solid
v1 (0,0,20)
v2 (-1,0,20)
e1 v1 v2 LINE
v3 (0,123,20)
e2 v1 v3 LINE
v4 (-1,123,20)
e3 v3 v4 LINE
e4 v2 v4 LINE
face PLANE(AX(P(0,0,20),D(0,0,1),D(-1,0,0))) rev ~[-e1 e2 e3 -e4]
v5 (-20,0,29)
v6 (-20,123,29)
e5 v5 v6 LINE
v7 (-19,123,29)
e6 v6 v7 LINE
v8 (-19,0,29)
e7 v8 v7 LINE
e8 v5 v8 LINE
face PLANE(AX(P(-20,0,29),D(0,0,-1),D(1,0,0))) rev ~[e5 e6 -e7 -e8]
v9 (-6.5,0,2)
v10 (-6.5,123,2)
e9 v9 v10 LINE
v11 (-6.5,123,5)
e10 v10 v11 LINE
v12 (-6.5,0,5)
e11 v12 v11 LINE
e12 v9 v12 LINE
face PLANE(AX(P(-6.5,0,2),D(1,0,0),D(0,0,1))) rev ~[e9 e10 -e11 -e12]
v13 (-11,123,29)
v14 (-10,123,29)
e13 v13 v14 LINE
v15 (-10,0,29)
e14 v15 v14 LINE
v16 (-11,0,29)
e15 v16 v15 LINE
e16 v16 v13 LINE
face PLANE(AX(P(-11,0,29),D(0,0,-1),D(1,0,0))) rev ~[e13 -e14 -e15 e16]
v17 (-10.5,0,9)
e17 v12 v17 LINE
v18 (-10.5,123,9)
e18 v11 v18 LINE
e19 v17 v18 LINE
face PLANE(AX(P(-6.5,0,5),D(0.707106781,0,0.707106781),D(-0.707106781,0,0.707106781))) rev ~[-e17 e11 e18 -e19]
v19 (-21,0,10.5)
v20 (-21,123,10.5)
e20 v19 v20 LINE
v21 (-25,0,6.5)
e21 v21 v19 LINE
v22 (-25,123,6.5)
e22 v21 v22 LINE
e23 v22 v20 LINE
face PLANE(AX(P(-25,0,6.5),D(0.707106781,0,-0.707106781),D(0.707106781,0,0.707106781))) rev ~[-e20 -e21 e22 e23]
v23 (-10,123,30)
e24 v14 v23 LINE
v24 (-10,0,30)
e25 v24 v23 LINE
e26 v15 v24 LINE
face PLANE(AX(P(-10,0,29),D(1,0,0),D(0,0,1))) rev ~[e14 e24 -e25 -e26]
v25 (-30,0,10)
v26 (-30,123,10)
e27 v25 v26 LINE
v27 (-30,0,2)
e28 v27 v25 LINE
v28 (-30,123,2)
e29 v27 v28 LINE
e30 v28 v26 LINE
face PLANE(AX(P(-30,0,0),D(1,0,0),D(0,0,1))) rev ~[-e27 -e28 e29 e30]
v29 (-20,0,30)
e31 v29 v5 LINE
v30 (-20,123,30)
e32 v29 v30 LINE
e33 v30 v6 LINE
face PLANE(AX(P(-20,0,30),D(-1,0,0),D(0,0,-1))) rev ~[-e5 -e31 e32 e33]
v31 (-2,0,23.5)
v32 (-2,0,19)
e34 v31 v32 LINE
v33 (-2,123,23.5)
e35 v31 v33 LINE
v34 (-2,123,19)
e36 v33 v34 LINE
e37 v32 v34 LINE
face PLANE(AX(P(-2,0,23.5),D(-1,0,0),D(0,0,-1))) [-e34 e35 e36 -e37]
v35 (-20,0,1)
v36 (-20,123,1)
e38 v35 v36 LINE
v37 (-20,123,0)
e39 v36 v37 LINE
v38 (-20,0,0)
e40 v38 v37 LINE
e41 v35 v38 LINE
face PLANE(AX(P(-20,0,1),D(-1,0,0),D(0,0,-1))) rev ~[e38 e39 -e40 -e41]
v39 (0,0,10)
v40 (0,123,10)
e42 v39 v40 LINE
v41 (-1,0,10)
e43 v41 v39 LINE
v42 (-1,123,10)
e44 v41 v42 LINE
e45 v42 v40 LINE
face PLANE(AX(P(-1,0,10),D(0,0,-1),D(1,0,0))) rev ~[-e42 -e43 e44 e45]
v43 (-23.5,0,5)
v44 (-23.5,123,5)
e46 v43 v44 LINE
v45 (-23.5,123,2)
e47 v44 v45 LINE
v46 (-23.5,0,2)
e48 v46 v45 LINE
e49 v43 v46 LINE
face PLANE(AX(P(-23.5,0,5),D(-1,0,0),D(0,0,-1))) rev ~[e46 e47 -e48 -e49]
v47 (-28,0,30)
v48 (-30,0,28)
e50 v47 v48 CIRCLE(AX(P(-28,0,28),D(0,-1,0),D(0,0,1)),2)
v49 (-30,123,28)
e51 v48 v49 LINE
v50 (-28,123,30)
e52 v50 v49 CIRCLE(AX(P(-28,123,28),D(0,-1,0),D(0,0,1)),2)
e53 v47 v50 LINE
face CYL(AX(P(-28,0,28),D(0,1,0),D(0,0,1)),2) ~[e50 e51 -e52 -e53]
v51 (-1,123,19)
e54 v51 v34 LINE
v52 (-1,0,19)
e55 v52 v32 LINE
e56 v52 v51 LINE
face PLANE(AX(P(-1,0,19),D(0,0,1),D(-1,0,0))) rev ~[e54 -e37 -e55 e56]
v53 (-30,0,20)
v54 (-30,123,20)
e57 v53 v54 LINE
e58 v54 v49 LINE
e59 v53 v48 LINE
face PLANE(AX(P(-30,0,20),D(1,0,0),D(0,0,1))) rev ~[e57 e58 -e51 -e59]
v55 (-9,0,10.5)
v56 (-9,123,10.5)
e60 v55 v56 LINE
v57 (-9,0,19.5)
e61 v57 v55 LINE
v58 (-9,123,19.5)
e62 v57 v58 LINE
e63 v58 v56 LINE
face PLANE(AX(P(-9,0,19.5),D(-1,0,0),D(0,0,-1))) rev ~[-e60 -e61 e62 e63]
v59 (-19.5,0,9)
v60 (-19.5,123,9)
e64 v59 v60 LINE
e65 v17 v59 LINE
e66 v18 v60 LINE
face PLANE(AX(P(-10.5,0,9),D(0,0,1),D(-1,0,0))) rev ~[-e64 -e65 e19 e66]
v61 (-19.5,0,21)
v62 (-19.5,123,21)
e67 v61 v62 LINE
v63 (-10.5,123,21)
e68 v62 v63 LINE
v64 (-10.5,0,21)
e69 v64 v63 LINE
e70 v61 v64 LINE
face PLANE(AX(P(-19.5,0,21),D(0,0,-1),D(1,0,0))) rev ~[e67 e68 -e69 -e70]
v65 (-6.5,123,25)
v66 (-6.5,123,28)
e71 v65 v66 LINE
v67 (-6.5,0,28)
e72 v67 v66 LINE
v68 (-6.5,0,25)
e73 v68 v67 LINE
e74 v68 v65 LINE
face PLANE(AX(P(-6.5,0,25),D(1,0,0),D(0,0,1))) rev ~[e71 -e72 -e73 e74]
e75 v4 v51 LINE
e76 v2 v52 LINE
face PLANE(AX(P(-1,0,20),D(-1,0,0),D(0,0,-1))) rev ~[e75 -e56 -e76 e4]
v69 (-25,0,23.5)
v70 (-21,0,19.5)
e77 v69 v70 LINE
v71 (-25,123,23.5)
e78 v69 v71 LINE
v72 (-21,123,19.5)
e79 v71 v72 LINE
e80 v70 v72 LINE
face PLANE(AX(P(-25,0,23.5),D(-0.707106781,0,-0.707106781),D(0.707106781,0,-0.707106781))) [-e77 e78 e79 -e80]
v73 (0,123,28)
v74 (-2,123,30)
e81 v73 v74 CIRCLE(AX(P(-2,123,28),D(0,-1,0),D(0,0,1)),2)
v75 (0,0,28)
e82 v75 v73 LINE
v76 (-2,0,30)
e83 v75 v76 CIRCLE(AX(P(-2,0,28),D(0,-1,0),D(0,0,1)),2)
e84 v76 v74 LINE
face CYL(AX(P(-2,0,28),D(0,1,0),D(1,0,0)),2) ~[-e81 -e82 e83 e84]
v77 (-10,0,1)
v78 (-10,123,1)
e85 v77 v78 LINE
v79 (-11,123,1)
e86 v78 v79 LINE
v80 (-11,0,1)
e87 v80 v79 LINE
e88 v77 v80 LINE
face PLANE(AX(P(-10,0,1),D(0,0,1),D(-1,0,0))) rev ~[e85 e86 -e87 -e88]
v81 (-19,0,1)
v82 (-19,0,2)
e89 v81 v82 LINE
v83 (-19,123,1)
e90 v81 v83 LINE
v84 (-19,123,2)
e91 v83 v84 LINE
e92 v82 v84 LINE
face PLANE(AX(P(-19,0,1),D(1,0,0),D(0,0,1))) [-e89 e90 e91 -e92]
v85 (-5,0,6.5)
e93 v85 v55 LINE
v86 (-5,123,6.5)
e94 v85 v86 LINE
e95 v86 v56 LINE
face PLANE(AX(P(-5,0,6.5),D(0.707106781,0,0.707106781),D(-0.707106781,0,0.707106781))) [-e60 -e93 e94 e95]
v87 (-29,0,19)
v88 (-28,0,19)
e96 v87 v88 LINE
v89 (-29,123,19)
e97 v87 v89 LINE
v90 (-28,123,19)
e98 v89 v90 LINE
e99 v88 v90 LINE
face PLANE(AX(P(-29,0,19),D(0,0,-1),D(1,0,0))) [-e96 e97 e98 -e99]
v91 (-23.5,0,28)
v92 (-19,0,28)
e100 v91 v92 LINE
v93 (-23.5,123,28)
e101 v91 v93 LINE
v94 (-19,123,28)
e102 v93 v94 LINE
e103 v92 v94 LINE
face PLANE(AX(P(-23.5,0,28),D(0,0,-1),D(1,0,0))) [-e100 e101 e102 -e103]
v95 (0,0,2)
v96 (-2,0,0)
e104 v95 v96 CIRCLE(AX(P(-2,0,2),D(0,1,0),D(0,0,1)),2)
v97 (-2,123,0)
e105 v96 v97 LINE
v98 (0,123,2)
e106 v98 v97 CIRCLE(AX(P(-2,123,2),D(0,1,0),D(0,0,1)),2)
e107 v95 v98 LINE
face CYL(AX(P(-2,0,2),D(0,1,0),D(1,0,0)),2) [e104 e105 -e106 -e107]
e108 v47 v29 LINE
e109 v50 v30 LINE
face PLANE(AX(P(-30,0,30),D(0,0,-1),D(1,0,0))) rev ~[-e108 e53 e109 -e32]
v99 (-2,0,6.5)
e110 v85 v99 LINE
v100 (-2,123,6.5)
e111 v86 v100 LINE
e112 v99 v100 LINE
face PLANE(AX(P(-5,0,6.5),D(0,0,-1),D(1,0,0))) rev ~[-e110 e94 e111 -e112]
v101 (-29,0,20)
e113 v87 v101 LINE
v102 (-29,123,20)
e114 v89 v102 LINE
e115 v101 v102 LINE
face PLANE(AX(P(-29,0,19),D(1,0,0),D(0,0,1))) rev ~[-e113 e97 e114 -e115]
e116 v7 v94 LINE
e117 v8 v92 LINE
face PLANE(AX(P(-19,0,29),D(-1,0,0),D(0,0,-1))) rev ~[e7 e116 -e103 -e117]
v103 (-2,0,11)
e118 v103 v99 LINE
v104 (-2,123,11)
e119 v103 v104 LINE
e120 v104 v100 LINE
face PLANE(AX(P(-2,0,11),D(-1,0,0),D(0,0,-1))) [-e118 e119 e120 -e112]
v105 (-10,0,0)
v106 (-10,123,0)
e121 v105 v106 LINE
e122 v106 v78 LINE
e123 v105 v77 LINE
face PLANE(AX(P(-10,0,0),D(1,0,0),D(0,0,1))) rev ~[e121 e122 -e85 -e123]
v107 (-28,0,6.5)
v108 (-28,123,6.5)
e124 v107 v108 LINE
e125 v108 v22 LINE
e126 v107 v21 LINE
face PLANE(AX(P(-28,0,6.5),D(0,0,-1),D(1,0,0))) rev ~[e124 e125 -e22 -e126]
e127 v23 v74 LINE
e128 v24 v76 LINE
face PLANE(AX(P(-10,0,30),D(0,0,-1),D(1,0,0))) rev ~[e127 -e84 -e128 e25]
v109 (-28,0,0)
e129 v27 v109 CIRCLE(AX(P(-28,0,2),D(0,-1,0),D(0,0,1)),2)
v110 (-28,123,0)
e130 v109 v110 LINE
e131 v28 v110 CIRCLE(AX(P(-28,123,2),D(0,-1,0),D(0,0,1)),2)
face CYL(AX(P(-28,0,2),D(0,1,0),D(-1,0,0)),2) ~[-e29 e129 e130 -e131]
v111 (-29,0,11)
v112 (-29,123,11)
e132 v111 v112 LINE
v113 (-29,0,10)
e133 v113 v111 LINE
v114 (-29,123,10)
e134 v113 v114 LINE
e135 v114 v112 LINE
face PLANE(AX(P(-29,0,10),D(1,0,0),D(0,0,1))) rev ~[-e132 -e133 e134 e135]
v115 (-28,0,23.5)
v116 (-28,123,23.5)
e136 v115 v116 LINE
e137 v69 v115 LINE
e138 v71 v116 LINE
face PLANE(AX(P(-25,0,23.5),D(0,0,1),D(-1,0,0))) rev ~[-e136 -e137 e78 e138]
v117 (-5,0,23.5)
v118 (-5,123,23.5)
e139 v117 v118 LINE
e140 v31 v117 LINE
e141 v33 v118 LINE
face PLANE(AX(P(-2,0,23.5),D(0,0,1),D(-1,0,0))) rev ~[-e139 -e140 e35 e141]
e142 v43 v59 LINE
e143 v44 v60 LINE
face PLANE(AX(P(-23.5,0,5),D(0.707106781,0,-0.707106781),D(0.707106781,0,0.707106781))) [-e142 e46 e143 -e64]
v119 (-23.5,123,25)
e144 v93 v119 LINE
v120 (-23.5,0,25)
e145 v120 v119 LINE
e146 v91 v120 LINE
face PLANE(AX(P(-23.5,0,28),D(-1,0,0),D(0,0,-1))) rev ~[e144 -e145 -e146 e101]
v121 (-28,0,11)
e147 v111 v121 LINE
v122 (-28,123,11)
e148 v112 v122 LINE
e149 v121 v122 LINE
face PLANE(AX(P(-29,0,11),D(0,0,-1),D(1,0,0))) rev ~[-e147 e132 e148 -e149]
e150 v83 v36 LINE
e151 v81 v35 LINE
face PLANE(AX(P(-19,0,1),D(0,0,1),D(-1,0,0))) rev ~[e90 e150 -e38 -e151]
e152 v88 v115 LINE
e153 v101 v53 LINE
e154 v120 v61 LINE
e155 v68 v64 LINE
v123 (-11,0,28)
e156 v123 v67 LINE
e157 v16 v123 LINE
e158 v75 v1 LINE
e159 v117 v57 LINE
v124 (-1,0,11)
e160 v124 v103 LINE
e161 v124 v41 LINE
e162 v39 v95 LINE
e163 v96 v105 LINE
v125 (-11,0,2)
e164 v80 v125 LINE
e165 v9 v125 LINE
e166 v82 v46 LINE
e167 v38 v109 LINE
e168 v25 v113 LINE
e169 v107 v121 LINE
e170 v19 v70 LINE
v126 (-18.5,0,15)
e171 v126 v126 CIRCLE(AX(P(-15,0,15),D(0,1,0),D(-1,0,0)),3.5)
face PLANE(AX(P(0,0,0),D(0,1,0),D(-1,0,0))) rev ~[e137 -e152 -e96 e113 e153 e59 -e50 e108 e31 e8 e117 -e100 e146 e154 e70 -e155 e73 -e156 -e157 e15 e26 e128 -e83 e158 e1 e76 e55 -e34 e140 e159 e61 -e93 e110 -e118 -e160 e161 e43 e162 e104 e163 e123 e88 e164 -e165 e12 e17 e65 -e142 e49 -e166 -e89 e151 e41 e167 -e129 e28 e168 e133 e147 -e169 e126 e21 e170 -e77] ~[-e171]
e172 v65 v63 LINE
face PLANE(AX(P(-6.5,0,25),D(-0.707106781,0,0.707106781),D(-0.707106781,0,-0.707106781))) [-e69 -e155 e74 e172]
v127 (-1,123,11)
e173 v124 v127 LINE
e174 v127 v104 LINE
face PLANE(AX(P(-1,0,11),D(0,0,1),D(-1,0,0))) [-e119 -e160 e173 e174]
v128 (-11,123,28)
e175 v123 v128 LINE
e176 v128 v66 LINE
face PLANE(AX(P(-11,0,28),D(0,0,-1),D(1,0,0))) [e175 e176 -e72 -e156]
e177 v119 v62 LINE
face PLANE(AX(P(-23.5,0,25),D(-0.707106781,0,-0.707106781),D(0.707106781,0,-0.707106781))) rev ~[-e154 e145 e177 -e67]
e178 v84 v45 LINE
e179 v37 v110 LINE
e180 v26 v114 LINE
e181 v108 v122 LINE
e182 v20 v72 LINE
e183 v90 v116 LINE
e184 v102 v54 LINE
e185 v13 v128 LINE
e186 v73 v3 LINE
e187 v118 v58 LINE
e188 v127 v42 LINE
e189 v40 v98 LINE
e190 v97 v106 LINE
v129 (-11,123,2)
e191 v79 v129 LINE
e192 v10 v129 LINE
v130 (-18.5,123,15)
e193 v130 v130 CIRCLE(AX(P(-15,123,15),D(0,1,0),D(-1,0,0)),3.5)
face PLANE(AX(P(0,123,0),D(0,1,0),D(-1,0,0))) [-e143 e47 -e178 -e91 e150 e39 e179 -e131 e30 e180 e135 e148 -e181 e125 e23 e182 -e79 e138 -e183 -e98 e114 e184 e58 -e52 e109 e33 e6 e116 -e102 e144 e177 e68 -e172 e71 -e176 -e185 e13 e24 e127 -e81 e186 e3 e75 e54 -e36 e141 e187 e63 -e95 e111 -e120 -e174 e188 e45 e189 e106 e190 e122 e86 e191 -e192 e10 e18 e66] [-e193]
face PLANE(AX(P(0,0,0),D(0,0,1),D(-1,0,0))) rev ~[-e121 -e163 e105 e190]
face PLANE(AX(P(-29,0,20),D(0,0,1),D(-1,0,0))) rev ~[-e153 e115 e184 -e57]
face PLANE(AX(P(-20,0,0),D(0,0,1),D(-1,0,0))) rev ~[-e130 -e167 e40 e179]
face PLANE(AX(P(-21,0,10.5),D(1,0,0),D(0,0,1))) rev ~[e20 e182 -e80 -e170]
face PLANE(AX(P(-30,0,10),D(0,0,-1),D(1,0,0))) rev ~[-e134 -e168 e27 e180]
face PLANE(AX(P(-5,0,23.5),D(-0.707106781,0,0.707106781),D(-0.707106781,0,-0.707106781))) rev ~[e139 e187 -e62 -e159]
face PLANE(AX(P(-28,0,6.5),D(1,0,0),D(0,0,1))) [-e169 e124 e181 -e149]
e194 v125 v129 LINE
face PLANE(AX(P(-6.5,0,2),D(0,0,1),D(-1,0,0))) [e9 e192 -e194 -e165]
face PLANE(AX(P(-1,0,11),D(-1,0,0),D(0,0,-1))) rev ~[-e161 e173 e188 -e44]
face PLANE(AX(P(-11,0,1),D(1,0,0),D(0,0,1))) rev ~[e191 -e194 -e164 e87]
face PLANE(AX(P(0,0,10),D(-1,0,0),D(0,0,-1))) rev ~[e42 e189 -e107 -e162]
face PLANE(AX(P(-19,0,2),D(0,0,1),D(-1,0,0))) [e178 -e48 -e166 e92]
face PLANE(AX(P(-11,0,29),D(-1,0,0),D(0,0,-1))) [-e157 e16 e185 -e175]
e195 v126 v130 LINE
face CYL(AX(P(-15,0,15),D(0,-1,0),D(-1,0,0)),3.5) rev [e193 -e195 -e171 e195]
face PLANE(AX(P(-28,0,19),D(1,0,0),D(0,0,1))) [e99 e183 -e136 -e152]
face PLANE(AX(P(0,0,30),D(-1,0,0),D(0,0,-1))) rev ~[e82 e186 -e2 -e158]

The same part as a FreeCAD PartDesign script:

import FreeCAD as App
import Part
import Sketcher
Q = App.Units.Quantity


def edges_at(feature, points):
    """Names of the edges that pass closest to the given points."""
    edges = feature.Shape.Edges
    near = lambda p: min(range(len(edges)), key=lambda i: edges[i].distToShape(Part.Vertex(*p))[0])
    return sorted({f"Edge{near(p) + 1}" for p in points})


def add_polygon(sketch, points):
    """Adds a closed chain of lines whose ends are joined by coincident constraints."""
    first, n = sketch.GeometryCount, len(points)
    for a, b in zip(points, points[1:] + points[:1]):
        sketch.addGeometry(Part.LineSegment(App.Vector(*a, 0), App.Vector(*b, 0)), False)
    for i in range(n):
        sketch.addConstraint(Sketcher.Constraint("Coincident", first + i, 2, first + (i + 1) % n, 1))

doc = App.newDocument("Part")
body = doc.addObject("PartDesign::Body", "Body")

sketch1 = doc.addObject("Sketcher::SketchObject", "Sketch")
body.addObject(sketch1)
sketch1.AttachmentSupport = (doc.XZ_Plane, [""])
sketch1.MapMode = "FlatFace"
add_polygon(sketch1, [(0, 10), (0, 0), (-10, 0), (-10, 1), (-11, 1), (-11, 2), (-6.5, 2), (-6.5, 5), (-10.5, 9), (-19.5, 9), (-23.5, 5), (-23.5, 2), (-19, 2), (-19, 1), (-20, 1), (-20, 0), (-30, 0), (-30, 10), (-29, 10), (-29, 11), (-28, 11), (-28, 6.5), (-25, 6.5), (-21, 10.5), (-21, 19.5), (-25, 23.5), (-28, 23.5), (-28, 19), (-29, 19), (-29, 20), (-30, 20), (-30, 30), (-20, 30), (-20, 29), (-19, 29), (-19, 28), (-23.5, 28), (-23.5, 25), (-19.5, 21), (-10.5, 21), (-6.5, 25), (-6.5, 28), (-11, 28), (-11, 29), (-10, 29), (-10, 30), (0, 30), (0, 20), (-1, 20), (-1, 19), (-2, 19), (-2, 23.5), (-5, 23.5), (-9, 19.5), (-9, 10.5), (-5, 6.5), (-2, 6.5), (-2, 11), (-1, 11), (-1, 10)])
sketch1.addGeometry(Part.Circle(App.Vector(-15, 15, 0), App.Vector(0, 0, 1), 3.5), False)
sketch1.addConstraint([
    Sketcher.Constraint("Vertical", 0),
    Sketcher.Constraint("Horizontal", 1),
    Sketcher.Constraint("Vertical", 2),
    Sketcher.Constraint("Horizontal", 3),
    Sketcher.Constraint("Vertical", 4),
    Sketcher.Constraint("Horizontal", 5),
    Sketcher.Constraint("Vertical", 6),
    Sketcher.Constraint("Horizontal", 8),
    Sketcher.Constraint("Vertical", 10),
    Sketcher.Constraint("Horizontal", 11),
    Sketcher.Constraint("Vertical", 12),
    Sketcher.Constraint("Horizontal", 13),
    Sketcher.Constraint("Vertical", 14),
    Sketcher.Constraint("Horizontal", 15),
    Sketcher.Constraint("Vertical", 16),
    Sketcher.Constraint("Horizontal", 17),
    Sketcher.Constraint("Vertical", 18),
    Sketcher.Constraint("Horizontal", 19),
    Sketcher.Constraint("Vertical", 20),
    Sketcher.Constraint("Horizontal", 21),
    Sketcher.Constraint("Vertical", 23),
    Sketcher.Constraint("Horizontal", 25),
    Sketcher.Constraint("Vertical", 26),
    Sketcher.Constraint("Horizontal", 27),
    Sketcher.Constraint("Vertical", 28),
    Sketcher.Constraint("Horizontal", 29),
    Sketcher.Constraint("Vertical", 30),
    Sketcher.Constraint("Horizontal", 31),
    Sketcher.Constraint("Vertical", 32),
    Sketcher.Constraint("Horizontal", 33),
    Sketcher.Constraint("Vertical", 34),
    Sketcher.Constraint("Horizontal", 35),
    Sketcher.Constraint("Vertical", 36),
    Sketcher.Constraint("Horizontal", 38),
    Sketcher.Constraint("Vertical", 40),
    Sketcher.Constraint("Horizontal", 41),
    Sketcher.Constraint("Vertical", 42),
    Sketcher.Constraint("Horizontal", 43),
    Sketcher.Constraint("Vertical", 44),
    Sketcher.Constraint("Horizontal", 45),
    Sketcher.Constraint("Vertical", 46),
    Sketcher.Constraint("Horizontal", 47),
    Sketcher.Constraint("Vertical", 48),
    Sketcher.Constraint("Horizontal", 49),
    Sketcher.Constraint("Vertical", 50),
    Sketcher.Constraint("Horizontal", 51),
    Sketcher.Constraint("Vertical", 53),
    Sketcher.Constraint("Horizontal", 55),
    Sketcher.Constraint("Vertical", 56),
    Sketcher.Constraint("Horizontal", 57),
    Sketcher.Constraint("Vertical", 58),
    Sketcher.Constraint("Horizontal", 59),
    Sketcher.Constraint("Coincident", 0, 2, -1, 1),
    Sketcher.Constraint("PointOnObject", 14, 2, -1),
    Sketcher.Constraint("PointOnObject", 45, 2, -2),
    Sketcher.Constraint("Perpendicular", 7, 9),
    Sketcher.Constraint("Parallel", 9, 22),
    Sketcher.Constraint("Perpendicular", 22, 24),
    Sketcher.Constraint("Parallel", 24, 37),
    Sketcher.Constraint("Perpendicular", 37, 39),
    Sketcher.Constraint("Parallel", 39, 52),
    Sketcher.Constraint("Perpendicular", 52, 54),
    Sketcher.Constraint("Horizontal", 6, 2, 9, 2),
    Sketcher.Constraint("Horizontal", 5, 2, 10, 2),
    Sketcher.Constraint("Horizontal", 3, 2, 12, 2),
    Sketcher.Constraint("Horizontal", 36, 2, 39, 2),
    Sketcher.Constraint("Horizontal", 35, 2, 40, 2),
    Sketcher.Constraint("Horizontal", 33, 2, 42, 2),
    Sketcher.Constraint("Horizontal", 31, 2, 44, 2),
    Sketcher.Constraint("Horizontal", 29, 2, 46, 2),
    Sketcher.Constraint("Horizontal", 27, 2, 48, 2),
    Sketcher.Constraint("Horizontal", 25, 2, 50, 2),
    Sketcher.Constraint("Horizontal", 23, 2, 52, 2),
    Sketcher.Constraint("Horizontal", 22, 2, 53, 2),
    Sketcher.Constraint("Horizontal", 21, 2, 54, 2),
    Sketcher.Constraint("Horizontal", 19, 2, 56, 2),
    Sketcher.Constraint("Horizontal", 17, 2, 58, 2),
    Sketcher.Constraint("Vertical", 21, 2, 24, 2),
    Sketcher.Constraint("Vertical", 20, 2, 25, 2),
    Sketcher.Constraint("Vertical", 18, 2, 27, 2),
    Sketcher.Constraint("Vertical", 16, 2, 29, 2),
    Sketcher.Constraint("Vertical", 14, 2, 31, 2),
    Sketcher.Constraint("Vertical", 12, 2, 33, 2),
    Sketcher.Constraint("Vertical", 10, 2, 35, 2),
    Sketcher.Constraint("Vertical", 8, 2, 37, 2),
    Sketcher.Constraint("Vertical", 7, 2, 38, 2),
    Sketcher.Constraint("Vertical", 6, 2, 39, 2),
    Sketcher.Constraint("Vertical", 4, 2, 41, 2),
    Sketcher.Constraint("Vertical", 2, 2, 43, 2),
    Sketcher.Constraint("Vertical", 50, 2, 55, 2),
    Sketcher.Constraint("Vertical", 48, 2, 57, 2),
    Sketcher.Constraint("Equal", 5, 11),
    Sketcher.Constraint("Equal", 3, 13),
    Sketcher.Constraint("Equal", 1, 15),
    Sketcher.Constraint("Equal", 13, 17),
    Sketcher.Constraint("Equal", 17, 19),
    Sketcher.Constraint("Equal", 43, 47),
    Sketcher.Constraint("Equal", 47, 49),
    Sketcher.Constraint("Equal", 25, 51),
    Sketcher.Constraint("Equal", 45, 0),
    Sketcher.Constraint("Equal", 59, 2),
    Sketcher.Constraint("Equal", 2, 4),
    Sketcher.Constraint("Equal", 55, 6),
    Sketcher.Constraint("Equal", 14, 18),
    Sketcher.Constraint("Equal", 41, 20),
    Sketcher.Constraint("Equal", 38, 23),
    Sketcher.Constraint("Equal", 20, 26),
    Sketcher.Constraint("Equal", 18, 28),
    Sketcher.Constraint("Equal", 16, 30),
    Sketcher.Constraint("Equal", 28, 32),
    Sketcher.Constraint("Equal", 32, 34),
    Sketcher.Constraint("Equal", 10, 36),
    Sketcher.Constraint("Equal", 9, 22),
    Sketcher.Constraint("Diameter", 60, Q("7 mm")),
    Sketcher.Constraint("DistanceX", 3, 2, 3, 1, Q("1 mm")),
    Sketcher.Constraint("DistanceX", 8, 2, 8, 1, Q("9 mm")),
    Sketcher.Constraint("DistanceX", 60, 3, -1, 1, Q("15 mm")),
    Sketcher.Constraint("DistanceY", -1, 1, 60, 3, Q("15 mm")),
    Sketcher.Constraint("DistanceX", 3, 2, -1, 1, Q("11 mm")),
    Sketcher.Constraint("DistanceY", -1, 1, 7, 2, Q("9 mm")),
    Sketcher.Constraint("DistanceX", 15, 2, -1, 1, Q("30 mm")),
    Sketcher.Constraint("DistanceX", 5, 2, -1, 1, Q("6.5 mm")),
])
pad1 = doc.addObject("PartDesign::Pad", "Pad")
body.addObject(pad1)
pad1.Profile = sketch1
pad1.Length = 123
pad1.Reversed = True
doc.recompute()

fillet = doc.addObject("PartDesign::Fillet", "Fillet")
body.addObject(fillet)
fillet.Base = (pad1, edges_at(pad1, [
    (0, 61.5, 30),
    (0, 61.5, 0),
    (-30, 61.5, 0),
    (-30, 61.5, 30),
]))
fillet.Radius = 2

doc.recompute()
